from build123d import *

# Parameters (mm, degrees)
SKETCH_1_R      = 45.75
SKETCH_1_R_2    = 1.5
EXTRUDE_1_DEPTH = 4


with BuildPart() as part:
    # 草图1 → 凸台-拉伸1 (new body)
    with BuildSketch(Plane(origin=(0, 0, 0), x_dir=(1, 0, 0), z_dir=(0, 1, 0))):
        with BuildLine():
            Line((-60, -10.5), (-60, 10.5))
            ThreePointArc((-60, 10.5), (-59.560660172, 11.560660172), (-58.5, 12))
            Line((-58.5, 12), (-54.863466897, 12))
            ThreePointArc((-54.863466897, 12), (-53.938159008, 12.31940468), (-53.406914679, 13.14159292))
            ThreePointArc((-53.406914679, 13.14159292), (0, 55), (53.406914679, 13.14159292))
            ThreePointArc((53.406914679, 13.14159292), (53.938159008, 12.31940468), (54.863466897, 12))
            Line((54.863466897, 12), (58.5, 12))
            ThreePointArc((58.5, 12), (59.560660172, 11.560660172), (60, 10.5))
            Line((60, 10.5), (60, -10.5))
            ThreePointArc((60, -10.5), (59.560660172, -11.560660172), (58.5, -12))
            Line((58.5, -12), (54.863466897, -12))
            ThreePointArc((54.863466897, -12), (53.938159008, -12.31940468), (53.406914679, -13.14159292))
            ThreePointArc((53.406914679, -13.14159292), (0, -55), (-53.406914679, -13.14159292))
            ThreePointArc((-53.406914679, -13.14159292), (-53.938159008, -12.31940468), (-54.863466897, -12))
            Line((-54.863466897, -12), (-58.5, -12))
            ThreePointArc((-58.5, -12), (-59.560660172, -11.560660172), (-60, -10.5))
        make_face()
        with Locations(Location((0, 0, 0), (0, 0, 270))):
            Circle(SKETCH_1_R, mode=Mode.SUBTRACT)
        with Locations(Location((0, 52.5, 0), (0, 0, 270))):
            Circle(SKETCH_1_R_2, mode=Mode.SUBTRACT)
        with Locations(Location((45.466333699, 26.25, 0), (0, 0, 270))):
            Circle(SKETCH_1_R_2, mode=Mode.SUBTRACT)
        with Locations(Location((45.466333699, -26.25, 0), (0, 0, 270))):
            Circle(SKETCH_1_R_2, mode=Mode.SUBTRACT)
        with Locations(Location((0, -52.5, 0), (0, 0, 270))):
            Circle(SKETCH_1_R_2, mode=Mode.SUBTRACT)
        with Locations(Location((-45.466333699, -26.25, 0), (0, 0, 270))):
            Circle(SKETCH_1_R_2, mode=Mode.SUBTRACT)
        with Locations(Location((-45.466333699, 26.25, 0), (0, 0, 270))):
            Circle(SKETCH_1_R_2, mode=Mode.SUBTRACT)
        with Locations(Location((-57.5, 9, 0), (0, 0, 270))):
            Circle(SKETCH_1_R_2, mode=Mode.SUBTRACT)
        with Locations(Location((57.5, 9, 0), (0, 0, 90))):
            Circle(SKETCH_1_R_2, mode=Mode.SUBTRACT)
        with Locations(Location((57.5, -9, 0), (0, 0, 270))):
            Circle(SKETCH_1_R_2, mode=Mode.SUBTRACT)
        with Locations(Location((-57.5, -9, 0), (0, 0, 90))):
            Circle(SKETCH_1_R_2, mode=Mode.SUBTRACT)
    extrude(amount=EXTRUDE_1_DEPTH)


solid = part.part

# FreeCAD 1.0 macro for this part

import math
import FreeCAD as App
import Part
import Sketcher
Q = App.Units.Quantity

doc = App.newDocument("Part")
body = doc.addObject("PartDesign::Body", "Body")

sketch1 = body.newObject("Sketcher::SketchObject", "Sketch")
sketch1.AttachmentSupport = (doc.getObject("XZ_Plane"), [""])
sketch1.MapMode = "FlatFace"
sketch1.addGeometry([
    Part.LineSegment(App.Vector(-60, -10.5, 0), App.Vector(-60, 10.5, 0)),
    Part.ArcOfCircle(Part.Circle(App.Vector(-58.5, 10.5, 0), App.Vector(0, 0, 1), 1.5), math.radians(90), math.radians(180)),
    Part.LineSegment(App.Vector(-58.5, 12, 0), App.Vector(-54.9, 12, 0)),
    Part.ArcOfCircle(Part.Circle(App.Vector(-54.9, 13.5, 0), App.Vector(0, 0, 1), 1.5), math.radians(-90), math.radians(-14)),
    Part.ArcOfCircle(Part.Circle(App.Vector(0, 0, 0), App.Vector(0, 0, 1), 55), math.radians(14), math.radians(166)),
    Part.ArcOfCircle(Part.Circle(App.Vector(54.9, 13.5, 0), App.Vector(0, 0, 1), 1.5), math.radians(-166), math.radians(-90)),
    Part.LineSegment(App.Vector(54.9, 12, 0), App.Vector(58.5, 12, 0)),
    Part.ArcOfCircle(Part.Circle(App.Vector(58.5, 10.5, 0), App.Vector(0, 0, 1), 1.5), math.radians(0), math.radians(90)),
    Part.LineSegment(App.Vector(60, 10.5, 0), App.Vector(60, -10.5, 0)),
    Part.ArcOfCircle(Part.Circle(App.Vector(58.5, -10.5, 0), App.Vector(0, 0, 1), 1.5), math.radians(-90), math.radians(0)),
    Part.LineSegment(App.Vector(58.5, -12, 0), App.Vector(54.9, -12, 0)),
    Part.ArcOfCircle(Part.Circle(App.Vector(54.9, -13.5, 0), App.Vector(0, 0, 1), 1.5), math.radians(90), math.radians(166)),
    Part.ArcOfCircle(Part.Circle(App.Vector(0, 0, 0), App.Vector(0, 0, 1), 55), math.radians(-166), math.radians(-14)),
    Part.ArcOfCircle(Part.Circle(App.Vector(-54.9, -13.5, 0), App.Vector(0, 0, 1), 1.5), math.radians(14), math.radians(90)),
    Part.LineSegment(App.Vector(-54.9, -12, 0), App.Vector(-58.5, -12, 0)),
    Part.ArcOfCircle(Part.Circle(App.Vector(-58.5, -10.5, 0), App.Vector(0, 0, 1), 1.5), math.radians(180), math.radians(270)),
    Part.Circle(App.Vector(45.5, 26.2, 0), App.Vector(0, 0, 1), 1.5),
    Part.Circle(App.Vector(57.5, 9, 0), App.Vector(0, 0, 1), 1.5),
    Part.Circle(App.Vector(0, 52.5, 0), App.Vector(0, 0, 1), 1.5),
    Part.Circle(App.Vector(-45.5, 26.2, 0), App.Vector(0, 0, 1), 1.5),
    Part.Circle(App.Vector(-57.5, 9, 0), App.Vector(0, 0, 1), 1.5),
    Part.Circle(App.Vector(57.5, -9, 0), App.Vector(0, 0, 1), 1.5),
    Part.Circle(App.Vector(45.5, -26.2, 0), App.Vector(0, 0, 1), 1.5),
    Part.Circle(App.Vector(0, 0, 0), App.Vector(0, 0, 1), 45.8),
    Part.Circle(App.Vector(-57.5, -9, 0), App.Vector(0, 0, 1), 1.5),
    Part.Circle(App.Vector(-45.5, -26.2, 0), App.Vector(0, 0, 1), 1.5),
    Part.Circle(App.Vector(0, -52.5, 0), App.Vector(0, 0, 1), 1.5),
], False)
sketch1.addConstraint([
    Sketcher.Constraint("Tangent", 0, 2, 1, 2),
    Sketcher.Constraint("Tangent", 1, 1, 2, 1),
    Sketcher.Constraint("Tangent", 2, 2, 3, 1),
    Sketcher.Constraint("Tangent", 3, 2, 4, 2),
    Sketcher.Constraint("Tangent", 4, 1, 5, 1),
    Sketcher.Constraint("Tangent", 5, 2, 6, 1),
    Sketcher.Constraint("Tangent", 6, 2, 7, 2),
    Sketcher.Constraint("Tangent", 7, 1, 8, 1),
    Sketcher.Constraint("Tangent", 8, 2, 9, 2),
    Sketcher.Constraint("Tangent", 9, 1, 10, 1),
    Sketcher.Constraint("Tangent", 10, 2, 11, 1),
    Sketcher.Constraint("Tangent", 11, 2, 12, 2),
    Sketcher.Constraint("Tangent", 12, 1, 13, 1),
    Sketcher.Constraint("Tangent", 13, 2, 14, 1),
    Sketcher.Constraint("Tangent", 14, 2, 15, 2),
    Sketcher.Constraint("Tangent", 15, 1, 0, 1),
    Sketcher.Constraint("Vertical", 0),
    Sketcher.Constraint("Horizontal", 2),
    Sketcher.Constraint("Horizontal", 6),
    Sketcher.Constraint("Vertical", 8),
    Sketcher.Constraint("Horizontal", 10),
    Sketcher.Constraint("Horizontal", 14),
    Sketcher.Constraint("Coincident", 4, 3, -1, 1),
    Sketcher.Constraint("Coincident", 12, 3, -1, 1),
    Sketcher.Constraint("Coincident", 23, 3, -1, 1),
    Sketcher.Constraint("Equal", 1, 3),
    Sketcher.Constraint("Equal", 3, 5),
    Sketcher.Constraint("Equal", 5, 7),
    Sketcher.Constraint("Equal", 7, 9),
    Sketcher.Constraint("Equal", 9, 11),
    Sketcher.Constraint("Equal", 4, 12),
    Sketcher.Constraint("Equal", 11, 13),
    Sketcher.Constraint("Equal", 13, 15),
    Sketcher.Constraint("Equal", 15, 16),
    Sketcher.Constraint("Equal", 16, 17),
    Sketcher.Constraint("Equal", 17, 18),
    Sketcher.Constraint("Equal", 18, 19),
    Sketcher.Constraint("Equal", 19, 20),
    Sketcher.Constraint("Equal", 20, 21),
    Sketcher.Constraint("Equal", 21, 22),
    Sketcher.Constraint("Equal", 22, 24),
    Sketcher.Constraint("Equal", 24, 25),
    Sketcher.Constraint("Equal", 25, 26),
    Sketcher.Constraint("Symmetric", 1, 3, 9, 3, -1, 1),
    Sketcher.Constraint("Symmetric", 20, 3, 21, 3, -1, 1),
    Sketcher.Constraint("Symmetric", 19, 3, 22, 3, -1, 1),
    Sketcher.Constraint("Symmetric", 17, 3, 24, 3, -1, 1),
    Sketcher.Constraint("Symmetric", 16, 3, 25, 3, -1, 1),
    Sketcher.Constraint("Symmetric", 18, 3, 26, 3, -1, 1),
    Sketcher.Constraint("Symmetric", 16, 3, 19, 3, -2),
    Sketcher.Constraint("Symmetric", 17, 3, 20, 3, -2),
    Sketcher.Constraint("PointOnObject", 18, 3, -2),
    Sketcher.Constraint("Horizontal", 3, 3, 5, 3),
    Sketcher.Constraint("Horizontal", 11, 3, 13, 3),
    Sketcher.Constraint("Diameter", 16, Q("3 mm")),
    Sketcher.Constraint("Radius", 4, Q("55 mm")),
    Sketcher.Constraint("Diameter", 23, Q("91.5 mm")),
    Sketcher.Constraint("DistanceY", 0, 1, 0, 2, Q("21 mm")),
    Sketcher.Constraint("DistanceY", -1, 1, 17, 3, Q("9 mm")),
    Sketcher.Constraint("DistanceX", 0, 2, -1, 1, Q("60 mm")),
    Sketcher.Constraint("DistanceX", 17, 3, 7, 3, Q("1 mm")),
    Sketcher.Constraint("DistanceY", 3, 3, 18, 3, Q("39 mm")),
    Sketcher.Constraint("DistanceY", -1, 1, 16, 3, Q("26.25 mm")),
    Sketcher.Constraint("DistanceX", 16, 3, 4, 1, Q("7.940581 mm")),
])
pad1 = body.newObject("PartDesign::Pad", "Pad")
pad1.Profile = sketch1
pad1.Length = 4
pad1.Reversed = True

doc.recompute()
